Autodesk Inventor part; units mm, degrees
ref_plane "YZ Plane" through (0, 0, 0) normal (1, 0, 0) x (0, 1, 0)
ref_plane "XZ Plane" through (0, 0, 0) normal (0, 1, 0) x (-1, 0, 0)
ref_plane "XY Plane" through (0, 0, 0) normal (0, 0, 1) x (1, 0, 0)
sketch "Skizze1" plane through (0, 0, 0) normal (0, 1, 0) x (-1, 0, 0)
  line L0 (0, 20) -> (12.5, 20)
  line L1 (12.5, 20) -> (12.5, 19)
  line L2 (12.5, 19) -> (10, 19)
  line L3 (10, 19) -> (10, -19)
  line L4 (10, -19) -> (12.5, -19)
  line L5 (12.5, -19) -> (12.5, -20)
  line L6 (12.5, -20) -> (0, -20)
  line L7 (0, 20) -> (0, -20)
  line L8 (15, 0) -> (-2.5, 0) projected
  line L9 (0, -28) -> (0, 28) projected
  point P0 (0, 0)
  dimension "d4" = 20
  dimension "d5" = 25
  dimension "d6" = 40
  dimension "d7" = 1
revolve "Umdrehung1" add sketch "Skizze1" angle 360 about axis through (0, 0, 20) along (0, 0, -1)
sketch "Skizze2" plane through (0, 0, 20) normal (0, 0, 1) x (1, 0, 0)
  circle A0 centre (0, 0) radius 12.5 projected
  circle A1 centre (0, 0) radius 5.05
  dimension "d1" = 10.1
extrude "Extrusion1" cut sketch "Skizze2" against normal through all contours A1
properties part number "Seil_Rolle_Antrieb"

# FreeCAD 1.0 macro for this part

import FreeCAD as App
import Part
import Sketcher

V = App.Vector

doc = App.newDocument("Part")
body = doc.addObject("PartDesign::Body", "Body")

sketch1 = body.newObject("Sketcher::SketchObject", "Sketch")
sketch1.AttachmentSupport = (doc.getObject("XZ_Plane"), [""])
sketch1.MapMode = "FlatFace"
sketch1.addGeometry([
    Part.LineSegment(V(-12.5, 20, 0), V(0, 20, 0)),
    Part.LineSegment(V(0, 20, 0), V(0, -20, 0)),
    Part.LineSegment(V(0, -20, 0), V(-12.5, -20, 0)),
    Part.LineSegment(V(-12.5, -20, 0), V(-12.5, -19, 0)),
    Part.LineSegment(V(-12.5, -19, 0), V(-10, -19, 0)),
    Part.LineSegment(V(-10, -19, 0), V(-10, 19, 0)),
    Part.LineSegment(V(-10, 19, 0), V(-12.5, 19, 0)),
    Part.LineSegment(V(-12.5, 19, 0), V(-12.5, 20, 0)),
], False)
sketch1.addConstraint([
    Sketcher.Constraint("Coincident", 0, 2, 1, 1),
    Sketcher.Constraint("Coincident", 1, 2, 2, 1),
    Sketcher.Constraint("Coincident", 2, 2, 3, 1),
    Sketcher.Constraint("Coincident", 3, 2, 4, 1),
    Sketcher.Constraint("Coincident", 4, 2, 5, 1),
    Sketcher.Constraint("Coincident", 5, 2, 6, 1),
    Sketcher.Constraint("Coincident", 6, 2, 7, 1),
    Sketcher.Constraint("Coincident", 7, 2, 0, 1),
    Sketcher.Constraint("Horizontal", 0),
    Sketcher.Constraint("Vertical", 1),
    Sketcher.Constraint("Horizontal", 2),
    Sketcher.Constraint("Vertical", 3),
    Sketcher.Constraint("Horizontal", 4),
    Sketcher.Constraint("Vertical", 5),
    Sketcher.Constraint("Horizontal", 6),
    Sketcher.Constraint("Vertical", 7),
    Sketcher.Constraint("Symmetric", 0, 2, 1, 2, -1, 1),
    Sketcher.Constraint("Symmetric", 3, 2, 6, 2, -1),
    Sketcher.Constraint("DistanceY", 1, 2, 1, 1, 40.0),
    Sketcher.Constraint("DistanceY", 3, 1, 3, 2, 1.0),
    Sketcher.Constraint("DistanceX", 0, 1, 0, 2, 12.5),
    Sketcher.Constraint("DistanceX", 4, 1, 4, 2, 2.5),
])
revolution = body.newObject("PartDesign::Revolution", "Revolution")
revolution.Profile = sketch1
revolution.ReferenceAxis = (sketch1, ["V_Axis"])
revolution.Angle = 360

sketch2 = body.newObject("Sketcher::SketchObject", "Sketch001")
sketch2.AttachmentSupport = (doc.getObject("XY_Plane"), [""])
sketch2.MapMode = "FlatFace"
sketch2.AttachmentOffset = App.Placement(V(0, 0, 20), App.Rotation())
sketch2.addGeometry(Part.Circle(V(0, 0, 0), V(0, 0, 1), 5), False)
sketch2.addConstraint([
    Sketcher.Constraint("Coincident", 0, 3, -1, 1),
    Sketcher.Constraint("Diameter", 0, 10.1),
])
pocket1 = body.newObject("PartDesign::Pocket", "Pocket")
pocket1.Profile = sketch2
pocket1.Type = "ThroughAll"

doc.recompute()
